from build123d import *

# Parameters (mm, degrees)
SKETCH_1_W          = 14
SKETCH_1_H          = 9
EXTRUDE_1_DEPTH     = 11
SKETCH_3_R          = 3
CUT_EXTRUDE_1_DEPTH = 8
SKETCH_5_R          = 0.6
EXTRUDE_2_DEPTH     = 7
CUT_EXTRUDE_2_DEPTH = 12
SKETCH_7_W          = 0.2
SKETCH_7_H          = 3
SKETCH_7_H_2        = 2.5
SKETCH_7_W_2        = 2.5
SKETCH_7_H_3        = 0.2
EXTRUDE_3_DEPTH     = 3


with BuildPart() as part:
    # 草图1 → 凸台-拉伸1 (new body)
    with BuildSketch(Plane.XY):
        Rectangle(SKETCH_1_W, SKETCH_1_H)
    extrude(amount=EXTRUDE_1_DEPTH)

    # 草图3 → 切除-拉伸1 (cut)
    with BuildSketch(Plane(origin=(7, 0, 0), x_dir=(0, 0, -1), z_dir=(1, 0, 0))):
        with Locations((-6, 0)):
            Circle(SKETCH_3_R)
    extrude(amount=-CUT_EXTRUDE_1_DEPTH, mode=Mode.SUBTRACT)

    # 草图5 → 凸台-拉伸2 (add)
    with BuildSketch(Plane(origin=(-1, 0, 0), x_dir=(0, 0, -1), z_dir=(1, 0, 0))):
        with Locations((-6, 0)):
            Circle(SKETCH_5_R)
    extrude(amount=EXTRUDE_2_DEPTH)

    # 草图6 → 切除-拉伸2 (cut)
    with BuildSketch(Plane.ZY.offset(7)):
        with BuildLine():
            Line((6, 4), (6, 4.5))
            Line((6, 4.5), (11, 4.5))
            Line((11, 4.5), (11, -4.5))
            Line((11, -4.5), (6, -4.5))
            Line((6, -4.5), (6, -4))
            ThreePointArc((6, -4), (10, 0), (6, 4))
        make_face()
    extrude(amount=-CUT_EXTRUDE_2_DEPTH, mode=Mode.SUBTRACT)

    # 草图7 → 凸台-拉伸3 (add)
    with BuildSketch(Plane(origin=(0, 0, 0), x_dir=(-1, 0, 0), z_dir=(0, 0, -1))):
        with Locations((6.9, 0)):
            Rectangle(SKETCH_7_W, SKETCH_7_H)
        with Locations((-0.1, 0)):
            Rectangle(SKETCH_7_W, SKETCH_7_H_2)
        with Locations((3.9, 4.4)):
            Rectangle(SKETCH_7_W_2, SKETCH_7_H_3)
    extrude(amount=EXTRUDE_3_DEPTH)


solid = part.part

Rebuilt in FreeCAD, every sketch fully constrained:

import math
import FreeCAD as App
import Part
import Sketcher
Q = App.Units.Quantity


def add_polygon(sketch, points):
    """Adds a closed chain of lines whose ends are joined by coincident constraints."""
    first, n = sketch.GeometryCount, len(points)
    for a, b in zip(points, points[1:] + points[:1]):
        sketch.addGeometry(Part.LineSegment(App.Vector(*a, 0), App.Vector(*b, 0)), False)
    for i in range(n):
        sketch.addConstraint(Sketcher.Constraint("Coincident", first + i, 2, first + (i + 1) % n, 1))

doc = App.newDocument("Part")
body = doc.addObject("PartDesign::Body", "Body")

# Sketch on XY plane
sketch1 = body.newObject("Sketcher::SketchObject", "Sketch")
sketch1.AttachmentSupport = (doc.getObject("XY_Plane"), [""])
sketch1.MapMode = "FlatFace"
add_polygon(sketch1, [(-7, 4.5), (-7, -4.5), (7, -4.5), (7, 4.5)])  # lines 0-3
sketch1.addConstraint(Sketcher.Constraint("Vertical", 0))
sketch1.addConstraint(Sketcher.Constraint("Horizontal", 1))
sketch1.addConstraint(Sketcher.Constraint("Vertical", 2))
sketch1.addConstraint(Sketcher.Constraint("Horizontal", 3))
sketch1.addConstraint(Sketcher.Constraint("Symmetric", 0, 2, 2, 2, -1, 1))
sketch1.addConstraint(Sketcher.Constraint("DistanceX", 1, 1, 1, 2, Q("14 mm")))
sketch1.addConstraint(Sketcher.Constraint("DistanceY", 0, 2, 0, 1, Q("9 mm")))
pad1 = body.newObject("PartDesign::Pad", "Pad")
pad1.Profile = sketch1
pad1.Length = 11

# Sketch on YZ plane
sketch2 = body.newObject("Sketcher::SketchObject", "Sketch001")
sketch2.AttachmentSupport = (doc.getObject("YZ_Plane"), [""])
sketch2.MapMode = "FlatFace"
sketch2.AttachmentOffset = App.Placement(App.Vector(0, 0, 7), App.Rotation())
sketch2.addGeometry(Part.Circle(App.Vector(0, 6, 0), App.Vector(0, 0, 1), 3), False)
sketch2.addConstraint(Sketcher.Constraint("PointOnObject", 0, 3, -2))
sketch2.addConstraint(Sketcher.Constraint("Diameter", 0, Q("6 mm")))
sketch2.addConstraint(Sketcher.Constraint("DistanceY", -1, 1, 0, 3, Q("6 mm")))
pocket1 = body.newObject("PartDesign::Pocket", "Pocket")
pocket1.Profile = sketch2
pocket1.Length = 8

# Sketch on YZ plane
sketch3 = body.newObject("Sketcher::SketchObject", "Sketch002")
sketch3.AttachmentSupport = (doc.getObject("YZ_Plane"), [""])
sketch3.MapMode = "FlatFace"
sketch3.AttachmentOffset = App.Placement(App.Vector(0, 0, -1), App.Rotation())
sketch3.addGeometry(Part.Circle(App.Vector(0, 6, 0), App.Vector(0, 0, 1), 0.6), False)
sketch3.addConstraint(Sketcher.Constraint("PointOnObject", 0, 3, -2))
sketch3.addConstraint(Sketcher.Constraint("Diameter", 0, Q("1.2 mm")))
sketch3.addConstraint(Sketcher.Constraint("DistanceY", -1, 1, 0, 3, Q("6 mm")))
pad2 = body.newObject("PartDesign::Pad", "Pad001")
pad2.Profile = sketch3
pad2.Length = 7

# Sketch on YZ plane
sketch4 = body.newObject("Sketcher::SketchObject", "Sketch003")
sketch4.AttachmentSupport = (doc.getObject("YZ_Plane"), [""])
sketch4.MapMode = "FlatFace"
sketch4.AttachmentOffset = App.Placement(App.Vector(0, 0, -7), App.Rotation())
sketch4.addGeometry(Part.LineSegment(App.Vector(4.5, 6, 0), App.Vector(4, 6, 0)), False)
sketch4.addGeometry(Part.ArcOfCircle(Part.Circle(App.Vector(0, 6, 0), App.Vector(0, 0, 1), 4), math.radians(0), math.radians(180)), False)
sketch4.addGeometry(Part.LineSegment(App.Vector(-4, 6, 0), App.Vector(-4.5, 6, 0)), False)
sketch4.addGeometry(Part.LineSegment(App.Vector(-4.5, 6, 0), App.Vector(-4.5, 11, 0)), False)
sketch4.addGeometry(Part.LineSegment(App.Vector(-4.5, 11, 0), App.Vector(4.5, 11, 0)), False)
sketch4.addGeometry(Part.LineSegment(App.Vector(4.5, 11, 0), App.Vector(4.5, 6, 0)), False)
sketch4.addConstraint(Sketcher.Constraint("Coincident", 0, 2, 1, 1))
sketch4.addConstraint(Sketcher.Constraint("Coincident", 1, 2, 2, 1))
sketch4.addConstraint(Sketcher.Constraint("Coincident", 2, 2, 3, 1))
sketch4.addConstraint(Sketcher.Constraint("Coincident", 3, 2, 4, 1))
sketch4.addConstraint(Sketcher.Constraint("Coincident", 4, 2, 5, 1))
sketch4.addConstraint(Sketcher.Constraint("Coincident", 5, 2, 0, 1))
sketch4.addConstraint(Sketcher.Constraint("Horizontal", 0))
sketch4.addConstraint(Sketcher.Constraint("Horizontal", 2))
sketch4.addConstraint(Sketcher.Constraint("Vertical", 3))
sketch4.addConstraint(Sketcher.Constraint("Horizontal", 4))
sketch4.addConstraint(Sketcher.Constraint("Vertical", 5))
sketch4.addConstraint(Sketcher.Constraint("Symmetric", 0, 2, 1, 2, -2))
sketch4.addConstraint(Sketcher.Constraint("Horizontal", 1, 3, 0, 2))
sketch4.addConstraint(Sketcher.Constraint("Equal", 0, 2))
sketch4.addConstraint(Sketcher.Constraint("Radius", 1, Q("4 mm")))
sketch4.addConstraint(Sketcher.Constraint("DistanceX", 4, 1, 4, 2, Q("9 mm")))
sketch4.addConstraint(Sketcher.Constraint("DistanceY", 3, 1, 3, 2, Q("5 mm")))
sketch4.addConstraint(Sketcher.Constraint("DistanceY", -1, 1, 1, 3, Q("6 mm")))
pocket2 = body.newObject("PartDesign::Pocket", "Pocket001")
pocket2.Profile = sketch4
pocket2.Length = 12
pocket2.Reversed = True

# Sketch on XY plane
sketch5 = body.newObject("Sketcher::SketchObject", "Sketch004")
sketch5.AttachmentSupport = (doc.getObject("XY_Plane"), [""])
sketch5.MapMode = "FlatFace"
add_polygon(sketch5, [(-6.8, 1.5), (-6.8, -1.5), (-7, -1.5), (-7, 1.5)])  # lines 0-3
add_polygon(sketch5, [(0.2, 1.25), (0.2, -1.25), (0, -1.25), (0, 1.25)])  # lines 4-7
add_polygon(sketch5, [(-2.65, 4.5), (-2.65, 4.3), (-5.15, 4.3), (-5.15, 4.5)])  # lines 8-11
sketch5.addConstraint(Sketcher.Constraint("Vertical", 0))
sketch5.addConstraint(Sketcher.Constraint("Horizontal", 1))
sketch5.addConstraint(Sketcher.Constraint("Vertical", 2))
sketch5.addConstraint(Sketcher.Constraint("Horizontal", 3))
sketch5.addConstraint(Sketcher.Constraint("Vertical", 4))
sketch5.addConstraint(Sketcher.Constraint("Horizontal", 5))
sketch5.addConstraint(Sketcher.Constraint("Vertical", 6))
sketch5.addConstraint(Sketcher.Constraint("Horizontal", 7))
sketch5.addConstraint(Sketcher.Constraint("Vertical", 8))
sketch5.addConstraint(Sketcher.Constraint("Horizontal", 9))
sketch5.addConstraint(Sketcher.Constraint("Vertical", 10))
sketch5.addConstraint(Sketcher.Constraint("Horizontal", 11))
sketch5.addConstraint(Sketcher.Constraint("Symmetric", 5, 2, 6, 2, -1, 1))
sketch5.addConstraint(Sketcher.Constraint("Equal", 3, 5))
sketch5.addConstraint(Sketcher.Constraint("Equal", 11, 4))
sketch5.addConstraint(Sketcher.Constraint("Equal", 7, 8))
sketch5.addConstraint(Sketcher.Constraint("DistanceY", 0, 2, 0, 1, Q("3 mm")))
sketch5.addConstraint(Sketcher.Constraint("DistanceX", 1, 2, 1, 1, Q("0.2 mm")))
sketch5.addConstraint(Sketcher.Constraint("DistanceX", 9, 2, 9, 1, Q("2.5 mm")))
sketch5.addConstraint(Sketcher.Constraint("DistanceX", 1, 2, -1, 1, Q("7 mm")))
sketch5.addConstraint(Sketcher.Constraint("DistanceY", 3, 2, 10, 2, Q("3 mm")))
sketch5.addConstraint(Sketcher.Constraint("DistanceY", 0, 2, -1, 1, Q("1.5 mm")))
sketch5.addConstraint(Sketcher.Constraint("DistanceX", 8, 2, -1, 1, Q("2.65 mm")))
pad3 = body.newObject("PartDesign::Pad", "Pad002")
pad3.Profile = sketch5
pad3.Length = 3
pad3.Reversed = True

doc.recompute()
